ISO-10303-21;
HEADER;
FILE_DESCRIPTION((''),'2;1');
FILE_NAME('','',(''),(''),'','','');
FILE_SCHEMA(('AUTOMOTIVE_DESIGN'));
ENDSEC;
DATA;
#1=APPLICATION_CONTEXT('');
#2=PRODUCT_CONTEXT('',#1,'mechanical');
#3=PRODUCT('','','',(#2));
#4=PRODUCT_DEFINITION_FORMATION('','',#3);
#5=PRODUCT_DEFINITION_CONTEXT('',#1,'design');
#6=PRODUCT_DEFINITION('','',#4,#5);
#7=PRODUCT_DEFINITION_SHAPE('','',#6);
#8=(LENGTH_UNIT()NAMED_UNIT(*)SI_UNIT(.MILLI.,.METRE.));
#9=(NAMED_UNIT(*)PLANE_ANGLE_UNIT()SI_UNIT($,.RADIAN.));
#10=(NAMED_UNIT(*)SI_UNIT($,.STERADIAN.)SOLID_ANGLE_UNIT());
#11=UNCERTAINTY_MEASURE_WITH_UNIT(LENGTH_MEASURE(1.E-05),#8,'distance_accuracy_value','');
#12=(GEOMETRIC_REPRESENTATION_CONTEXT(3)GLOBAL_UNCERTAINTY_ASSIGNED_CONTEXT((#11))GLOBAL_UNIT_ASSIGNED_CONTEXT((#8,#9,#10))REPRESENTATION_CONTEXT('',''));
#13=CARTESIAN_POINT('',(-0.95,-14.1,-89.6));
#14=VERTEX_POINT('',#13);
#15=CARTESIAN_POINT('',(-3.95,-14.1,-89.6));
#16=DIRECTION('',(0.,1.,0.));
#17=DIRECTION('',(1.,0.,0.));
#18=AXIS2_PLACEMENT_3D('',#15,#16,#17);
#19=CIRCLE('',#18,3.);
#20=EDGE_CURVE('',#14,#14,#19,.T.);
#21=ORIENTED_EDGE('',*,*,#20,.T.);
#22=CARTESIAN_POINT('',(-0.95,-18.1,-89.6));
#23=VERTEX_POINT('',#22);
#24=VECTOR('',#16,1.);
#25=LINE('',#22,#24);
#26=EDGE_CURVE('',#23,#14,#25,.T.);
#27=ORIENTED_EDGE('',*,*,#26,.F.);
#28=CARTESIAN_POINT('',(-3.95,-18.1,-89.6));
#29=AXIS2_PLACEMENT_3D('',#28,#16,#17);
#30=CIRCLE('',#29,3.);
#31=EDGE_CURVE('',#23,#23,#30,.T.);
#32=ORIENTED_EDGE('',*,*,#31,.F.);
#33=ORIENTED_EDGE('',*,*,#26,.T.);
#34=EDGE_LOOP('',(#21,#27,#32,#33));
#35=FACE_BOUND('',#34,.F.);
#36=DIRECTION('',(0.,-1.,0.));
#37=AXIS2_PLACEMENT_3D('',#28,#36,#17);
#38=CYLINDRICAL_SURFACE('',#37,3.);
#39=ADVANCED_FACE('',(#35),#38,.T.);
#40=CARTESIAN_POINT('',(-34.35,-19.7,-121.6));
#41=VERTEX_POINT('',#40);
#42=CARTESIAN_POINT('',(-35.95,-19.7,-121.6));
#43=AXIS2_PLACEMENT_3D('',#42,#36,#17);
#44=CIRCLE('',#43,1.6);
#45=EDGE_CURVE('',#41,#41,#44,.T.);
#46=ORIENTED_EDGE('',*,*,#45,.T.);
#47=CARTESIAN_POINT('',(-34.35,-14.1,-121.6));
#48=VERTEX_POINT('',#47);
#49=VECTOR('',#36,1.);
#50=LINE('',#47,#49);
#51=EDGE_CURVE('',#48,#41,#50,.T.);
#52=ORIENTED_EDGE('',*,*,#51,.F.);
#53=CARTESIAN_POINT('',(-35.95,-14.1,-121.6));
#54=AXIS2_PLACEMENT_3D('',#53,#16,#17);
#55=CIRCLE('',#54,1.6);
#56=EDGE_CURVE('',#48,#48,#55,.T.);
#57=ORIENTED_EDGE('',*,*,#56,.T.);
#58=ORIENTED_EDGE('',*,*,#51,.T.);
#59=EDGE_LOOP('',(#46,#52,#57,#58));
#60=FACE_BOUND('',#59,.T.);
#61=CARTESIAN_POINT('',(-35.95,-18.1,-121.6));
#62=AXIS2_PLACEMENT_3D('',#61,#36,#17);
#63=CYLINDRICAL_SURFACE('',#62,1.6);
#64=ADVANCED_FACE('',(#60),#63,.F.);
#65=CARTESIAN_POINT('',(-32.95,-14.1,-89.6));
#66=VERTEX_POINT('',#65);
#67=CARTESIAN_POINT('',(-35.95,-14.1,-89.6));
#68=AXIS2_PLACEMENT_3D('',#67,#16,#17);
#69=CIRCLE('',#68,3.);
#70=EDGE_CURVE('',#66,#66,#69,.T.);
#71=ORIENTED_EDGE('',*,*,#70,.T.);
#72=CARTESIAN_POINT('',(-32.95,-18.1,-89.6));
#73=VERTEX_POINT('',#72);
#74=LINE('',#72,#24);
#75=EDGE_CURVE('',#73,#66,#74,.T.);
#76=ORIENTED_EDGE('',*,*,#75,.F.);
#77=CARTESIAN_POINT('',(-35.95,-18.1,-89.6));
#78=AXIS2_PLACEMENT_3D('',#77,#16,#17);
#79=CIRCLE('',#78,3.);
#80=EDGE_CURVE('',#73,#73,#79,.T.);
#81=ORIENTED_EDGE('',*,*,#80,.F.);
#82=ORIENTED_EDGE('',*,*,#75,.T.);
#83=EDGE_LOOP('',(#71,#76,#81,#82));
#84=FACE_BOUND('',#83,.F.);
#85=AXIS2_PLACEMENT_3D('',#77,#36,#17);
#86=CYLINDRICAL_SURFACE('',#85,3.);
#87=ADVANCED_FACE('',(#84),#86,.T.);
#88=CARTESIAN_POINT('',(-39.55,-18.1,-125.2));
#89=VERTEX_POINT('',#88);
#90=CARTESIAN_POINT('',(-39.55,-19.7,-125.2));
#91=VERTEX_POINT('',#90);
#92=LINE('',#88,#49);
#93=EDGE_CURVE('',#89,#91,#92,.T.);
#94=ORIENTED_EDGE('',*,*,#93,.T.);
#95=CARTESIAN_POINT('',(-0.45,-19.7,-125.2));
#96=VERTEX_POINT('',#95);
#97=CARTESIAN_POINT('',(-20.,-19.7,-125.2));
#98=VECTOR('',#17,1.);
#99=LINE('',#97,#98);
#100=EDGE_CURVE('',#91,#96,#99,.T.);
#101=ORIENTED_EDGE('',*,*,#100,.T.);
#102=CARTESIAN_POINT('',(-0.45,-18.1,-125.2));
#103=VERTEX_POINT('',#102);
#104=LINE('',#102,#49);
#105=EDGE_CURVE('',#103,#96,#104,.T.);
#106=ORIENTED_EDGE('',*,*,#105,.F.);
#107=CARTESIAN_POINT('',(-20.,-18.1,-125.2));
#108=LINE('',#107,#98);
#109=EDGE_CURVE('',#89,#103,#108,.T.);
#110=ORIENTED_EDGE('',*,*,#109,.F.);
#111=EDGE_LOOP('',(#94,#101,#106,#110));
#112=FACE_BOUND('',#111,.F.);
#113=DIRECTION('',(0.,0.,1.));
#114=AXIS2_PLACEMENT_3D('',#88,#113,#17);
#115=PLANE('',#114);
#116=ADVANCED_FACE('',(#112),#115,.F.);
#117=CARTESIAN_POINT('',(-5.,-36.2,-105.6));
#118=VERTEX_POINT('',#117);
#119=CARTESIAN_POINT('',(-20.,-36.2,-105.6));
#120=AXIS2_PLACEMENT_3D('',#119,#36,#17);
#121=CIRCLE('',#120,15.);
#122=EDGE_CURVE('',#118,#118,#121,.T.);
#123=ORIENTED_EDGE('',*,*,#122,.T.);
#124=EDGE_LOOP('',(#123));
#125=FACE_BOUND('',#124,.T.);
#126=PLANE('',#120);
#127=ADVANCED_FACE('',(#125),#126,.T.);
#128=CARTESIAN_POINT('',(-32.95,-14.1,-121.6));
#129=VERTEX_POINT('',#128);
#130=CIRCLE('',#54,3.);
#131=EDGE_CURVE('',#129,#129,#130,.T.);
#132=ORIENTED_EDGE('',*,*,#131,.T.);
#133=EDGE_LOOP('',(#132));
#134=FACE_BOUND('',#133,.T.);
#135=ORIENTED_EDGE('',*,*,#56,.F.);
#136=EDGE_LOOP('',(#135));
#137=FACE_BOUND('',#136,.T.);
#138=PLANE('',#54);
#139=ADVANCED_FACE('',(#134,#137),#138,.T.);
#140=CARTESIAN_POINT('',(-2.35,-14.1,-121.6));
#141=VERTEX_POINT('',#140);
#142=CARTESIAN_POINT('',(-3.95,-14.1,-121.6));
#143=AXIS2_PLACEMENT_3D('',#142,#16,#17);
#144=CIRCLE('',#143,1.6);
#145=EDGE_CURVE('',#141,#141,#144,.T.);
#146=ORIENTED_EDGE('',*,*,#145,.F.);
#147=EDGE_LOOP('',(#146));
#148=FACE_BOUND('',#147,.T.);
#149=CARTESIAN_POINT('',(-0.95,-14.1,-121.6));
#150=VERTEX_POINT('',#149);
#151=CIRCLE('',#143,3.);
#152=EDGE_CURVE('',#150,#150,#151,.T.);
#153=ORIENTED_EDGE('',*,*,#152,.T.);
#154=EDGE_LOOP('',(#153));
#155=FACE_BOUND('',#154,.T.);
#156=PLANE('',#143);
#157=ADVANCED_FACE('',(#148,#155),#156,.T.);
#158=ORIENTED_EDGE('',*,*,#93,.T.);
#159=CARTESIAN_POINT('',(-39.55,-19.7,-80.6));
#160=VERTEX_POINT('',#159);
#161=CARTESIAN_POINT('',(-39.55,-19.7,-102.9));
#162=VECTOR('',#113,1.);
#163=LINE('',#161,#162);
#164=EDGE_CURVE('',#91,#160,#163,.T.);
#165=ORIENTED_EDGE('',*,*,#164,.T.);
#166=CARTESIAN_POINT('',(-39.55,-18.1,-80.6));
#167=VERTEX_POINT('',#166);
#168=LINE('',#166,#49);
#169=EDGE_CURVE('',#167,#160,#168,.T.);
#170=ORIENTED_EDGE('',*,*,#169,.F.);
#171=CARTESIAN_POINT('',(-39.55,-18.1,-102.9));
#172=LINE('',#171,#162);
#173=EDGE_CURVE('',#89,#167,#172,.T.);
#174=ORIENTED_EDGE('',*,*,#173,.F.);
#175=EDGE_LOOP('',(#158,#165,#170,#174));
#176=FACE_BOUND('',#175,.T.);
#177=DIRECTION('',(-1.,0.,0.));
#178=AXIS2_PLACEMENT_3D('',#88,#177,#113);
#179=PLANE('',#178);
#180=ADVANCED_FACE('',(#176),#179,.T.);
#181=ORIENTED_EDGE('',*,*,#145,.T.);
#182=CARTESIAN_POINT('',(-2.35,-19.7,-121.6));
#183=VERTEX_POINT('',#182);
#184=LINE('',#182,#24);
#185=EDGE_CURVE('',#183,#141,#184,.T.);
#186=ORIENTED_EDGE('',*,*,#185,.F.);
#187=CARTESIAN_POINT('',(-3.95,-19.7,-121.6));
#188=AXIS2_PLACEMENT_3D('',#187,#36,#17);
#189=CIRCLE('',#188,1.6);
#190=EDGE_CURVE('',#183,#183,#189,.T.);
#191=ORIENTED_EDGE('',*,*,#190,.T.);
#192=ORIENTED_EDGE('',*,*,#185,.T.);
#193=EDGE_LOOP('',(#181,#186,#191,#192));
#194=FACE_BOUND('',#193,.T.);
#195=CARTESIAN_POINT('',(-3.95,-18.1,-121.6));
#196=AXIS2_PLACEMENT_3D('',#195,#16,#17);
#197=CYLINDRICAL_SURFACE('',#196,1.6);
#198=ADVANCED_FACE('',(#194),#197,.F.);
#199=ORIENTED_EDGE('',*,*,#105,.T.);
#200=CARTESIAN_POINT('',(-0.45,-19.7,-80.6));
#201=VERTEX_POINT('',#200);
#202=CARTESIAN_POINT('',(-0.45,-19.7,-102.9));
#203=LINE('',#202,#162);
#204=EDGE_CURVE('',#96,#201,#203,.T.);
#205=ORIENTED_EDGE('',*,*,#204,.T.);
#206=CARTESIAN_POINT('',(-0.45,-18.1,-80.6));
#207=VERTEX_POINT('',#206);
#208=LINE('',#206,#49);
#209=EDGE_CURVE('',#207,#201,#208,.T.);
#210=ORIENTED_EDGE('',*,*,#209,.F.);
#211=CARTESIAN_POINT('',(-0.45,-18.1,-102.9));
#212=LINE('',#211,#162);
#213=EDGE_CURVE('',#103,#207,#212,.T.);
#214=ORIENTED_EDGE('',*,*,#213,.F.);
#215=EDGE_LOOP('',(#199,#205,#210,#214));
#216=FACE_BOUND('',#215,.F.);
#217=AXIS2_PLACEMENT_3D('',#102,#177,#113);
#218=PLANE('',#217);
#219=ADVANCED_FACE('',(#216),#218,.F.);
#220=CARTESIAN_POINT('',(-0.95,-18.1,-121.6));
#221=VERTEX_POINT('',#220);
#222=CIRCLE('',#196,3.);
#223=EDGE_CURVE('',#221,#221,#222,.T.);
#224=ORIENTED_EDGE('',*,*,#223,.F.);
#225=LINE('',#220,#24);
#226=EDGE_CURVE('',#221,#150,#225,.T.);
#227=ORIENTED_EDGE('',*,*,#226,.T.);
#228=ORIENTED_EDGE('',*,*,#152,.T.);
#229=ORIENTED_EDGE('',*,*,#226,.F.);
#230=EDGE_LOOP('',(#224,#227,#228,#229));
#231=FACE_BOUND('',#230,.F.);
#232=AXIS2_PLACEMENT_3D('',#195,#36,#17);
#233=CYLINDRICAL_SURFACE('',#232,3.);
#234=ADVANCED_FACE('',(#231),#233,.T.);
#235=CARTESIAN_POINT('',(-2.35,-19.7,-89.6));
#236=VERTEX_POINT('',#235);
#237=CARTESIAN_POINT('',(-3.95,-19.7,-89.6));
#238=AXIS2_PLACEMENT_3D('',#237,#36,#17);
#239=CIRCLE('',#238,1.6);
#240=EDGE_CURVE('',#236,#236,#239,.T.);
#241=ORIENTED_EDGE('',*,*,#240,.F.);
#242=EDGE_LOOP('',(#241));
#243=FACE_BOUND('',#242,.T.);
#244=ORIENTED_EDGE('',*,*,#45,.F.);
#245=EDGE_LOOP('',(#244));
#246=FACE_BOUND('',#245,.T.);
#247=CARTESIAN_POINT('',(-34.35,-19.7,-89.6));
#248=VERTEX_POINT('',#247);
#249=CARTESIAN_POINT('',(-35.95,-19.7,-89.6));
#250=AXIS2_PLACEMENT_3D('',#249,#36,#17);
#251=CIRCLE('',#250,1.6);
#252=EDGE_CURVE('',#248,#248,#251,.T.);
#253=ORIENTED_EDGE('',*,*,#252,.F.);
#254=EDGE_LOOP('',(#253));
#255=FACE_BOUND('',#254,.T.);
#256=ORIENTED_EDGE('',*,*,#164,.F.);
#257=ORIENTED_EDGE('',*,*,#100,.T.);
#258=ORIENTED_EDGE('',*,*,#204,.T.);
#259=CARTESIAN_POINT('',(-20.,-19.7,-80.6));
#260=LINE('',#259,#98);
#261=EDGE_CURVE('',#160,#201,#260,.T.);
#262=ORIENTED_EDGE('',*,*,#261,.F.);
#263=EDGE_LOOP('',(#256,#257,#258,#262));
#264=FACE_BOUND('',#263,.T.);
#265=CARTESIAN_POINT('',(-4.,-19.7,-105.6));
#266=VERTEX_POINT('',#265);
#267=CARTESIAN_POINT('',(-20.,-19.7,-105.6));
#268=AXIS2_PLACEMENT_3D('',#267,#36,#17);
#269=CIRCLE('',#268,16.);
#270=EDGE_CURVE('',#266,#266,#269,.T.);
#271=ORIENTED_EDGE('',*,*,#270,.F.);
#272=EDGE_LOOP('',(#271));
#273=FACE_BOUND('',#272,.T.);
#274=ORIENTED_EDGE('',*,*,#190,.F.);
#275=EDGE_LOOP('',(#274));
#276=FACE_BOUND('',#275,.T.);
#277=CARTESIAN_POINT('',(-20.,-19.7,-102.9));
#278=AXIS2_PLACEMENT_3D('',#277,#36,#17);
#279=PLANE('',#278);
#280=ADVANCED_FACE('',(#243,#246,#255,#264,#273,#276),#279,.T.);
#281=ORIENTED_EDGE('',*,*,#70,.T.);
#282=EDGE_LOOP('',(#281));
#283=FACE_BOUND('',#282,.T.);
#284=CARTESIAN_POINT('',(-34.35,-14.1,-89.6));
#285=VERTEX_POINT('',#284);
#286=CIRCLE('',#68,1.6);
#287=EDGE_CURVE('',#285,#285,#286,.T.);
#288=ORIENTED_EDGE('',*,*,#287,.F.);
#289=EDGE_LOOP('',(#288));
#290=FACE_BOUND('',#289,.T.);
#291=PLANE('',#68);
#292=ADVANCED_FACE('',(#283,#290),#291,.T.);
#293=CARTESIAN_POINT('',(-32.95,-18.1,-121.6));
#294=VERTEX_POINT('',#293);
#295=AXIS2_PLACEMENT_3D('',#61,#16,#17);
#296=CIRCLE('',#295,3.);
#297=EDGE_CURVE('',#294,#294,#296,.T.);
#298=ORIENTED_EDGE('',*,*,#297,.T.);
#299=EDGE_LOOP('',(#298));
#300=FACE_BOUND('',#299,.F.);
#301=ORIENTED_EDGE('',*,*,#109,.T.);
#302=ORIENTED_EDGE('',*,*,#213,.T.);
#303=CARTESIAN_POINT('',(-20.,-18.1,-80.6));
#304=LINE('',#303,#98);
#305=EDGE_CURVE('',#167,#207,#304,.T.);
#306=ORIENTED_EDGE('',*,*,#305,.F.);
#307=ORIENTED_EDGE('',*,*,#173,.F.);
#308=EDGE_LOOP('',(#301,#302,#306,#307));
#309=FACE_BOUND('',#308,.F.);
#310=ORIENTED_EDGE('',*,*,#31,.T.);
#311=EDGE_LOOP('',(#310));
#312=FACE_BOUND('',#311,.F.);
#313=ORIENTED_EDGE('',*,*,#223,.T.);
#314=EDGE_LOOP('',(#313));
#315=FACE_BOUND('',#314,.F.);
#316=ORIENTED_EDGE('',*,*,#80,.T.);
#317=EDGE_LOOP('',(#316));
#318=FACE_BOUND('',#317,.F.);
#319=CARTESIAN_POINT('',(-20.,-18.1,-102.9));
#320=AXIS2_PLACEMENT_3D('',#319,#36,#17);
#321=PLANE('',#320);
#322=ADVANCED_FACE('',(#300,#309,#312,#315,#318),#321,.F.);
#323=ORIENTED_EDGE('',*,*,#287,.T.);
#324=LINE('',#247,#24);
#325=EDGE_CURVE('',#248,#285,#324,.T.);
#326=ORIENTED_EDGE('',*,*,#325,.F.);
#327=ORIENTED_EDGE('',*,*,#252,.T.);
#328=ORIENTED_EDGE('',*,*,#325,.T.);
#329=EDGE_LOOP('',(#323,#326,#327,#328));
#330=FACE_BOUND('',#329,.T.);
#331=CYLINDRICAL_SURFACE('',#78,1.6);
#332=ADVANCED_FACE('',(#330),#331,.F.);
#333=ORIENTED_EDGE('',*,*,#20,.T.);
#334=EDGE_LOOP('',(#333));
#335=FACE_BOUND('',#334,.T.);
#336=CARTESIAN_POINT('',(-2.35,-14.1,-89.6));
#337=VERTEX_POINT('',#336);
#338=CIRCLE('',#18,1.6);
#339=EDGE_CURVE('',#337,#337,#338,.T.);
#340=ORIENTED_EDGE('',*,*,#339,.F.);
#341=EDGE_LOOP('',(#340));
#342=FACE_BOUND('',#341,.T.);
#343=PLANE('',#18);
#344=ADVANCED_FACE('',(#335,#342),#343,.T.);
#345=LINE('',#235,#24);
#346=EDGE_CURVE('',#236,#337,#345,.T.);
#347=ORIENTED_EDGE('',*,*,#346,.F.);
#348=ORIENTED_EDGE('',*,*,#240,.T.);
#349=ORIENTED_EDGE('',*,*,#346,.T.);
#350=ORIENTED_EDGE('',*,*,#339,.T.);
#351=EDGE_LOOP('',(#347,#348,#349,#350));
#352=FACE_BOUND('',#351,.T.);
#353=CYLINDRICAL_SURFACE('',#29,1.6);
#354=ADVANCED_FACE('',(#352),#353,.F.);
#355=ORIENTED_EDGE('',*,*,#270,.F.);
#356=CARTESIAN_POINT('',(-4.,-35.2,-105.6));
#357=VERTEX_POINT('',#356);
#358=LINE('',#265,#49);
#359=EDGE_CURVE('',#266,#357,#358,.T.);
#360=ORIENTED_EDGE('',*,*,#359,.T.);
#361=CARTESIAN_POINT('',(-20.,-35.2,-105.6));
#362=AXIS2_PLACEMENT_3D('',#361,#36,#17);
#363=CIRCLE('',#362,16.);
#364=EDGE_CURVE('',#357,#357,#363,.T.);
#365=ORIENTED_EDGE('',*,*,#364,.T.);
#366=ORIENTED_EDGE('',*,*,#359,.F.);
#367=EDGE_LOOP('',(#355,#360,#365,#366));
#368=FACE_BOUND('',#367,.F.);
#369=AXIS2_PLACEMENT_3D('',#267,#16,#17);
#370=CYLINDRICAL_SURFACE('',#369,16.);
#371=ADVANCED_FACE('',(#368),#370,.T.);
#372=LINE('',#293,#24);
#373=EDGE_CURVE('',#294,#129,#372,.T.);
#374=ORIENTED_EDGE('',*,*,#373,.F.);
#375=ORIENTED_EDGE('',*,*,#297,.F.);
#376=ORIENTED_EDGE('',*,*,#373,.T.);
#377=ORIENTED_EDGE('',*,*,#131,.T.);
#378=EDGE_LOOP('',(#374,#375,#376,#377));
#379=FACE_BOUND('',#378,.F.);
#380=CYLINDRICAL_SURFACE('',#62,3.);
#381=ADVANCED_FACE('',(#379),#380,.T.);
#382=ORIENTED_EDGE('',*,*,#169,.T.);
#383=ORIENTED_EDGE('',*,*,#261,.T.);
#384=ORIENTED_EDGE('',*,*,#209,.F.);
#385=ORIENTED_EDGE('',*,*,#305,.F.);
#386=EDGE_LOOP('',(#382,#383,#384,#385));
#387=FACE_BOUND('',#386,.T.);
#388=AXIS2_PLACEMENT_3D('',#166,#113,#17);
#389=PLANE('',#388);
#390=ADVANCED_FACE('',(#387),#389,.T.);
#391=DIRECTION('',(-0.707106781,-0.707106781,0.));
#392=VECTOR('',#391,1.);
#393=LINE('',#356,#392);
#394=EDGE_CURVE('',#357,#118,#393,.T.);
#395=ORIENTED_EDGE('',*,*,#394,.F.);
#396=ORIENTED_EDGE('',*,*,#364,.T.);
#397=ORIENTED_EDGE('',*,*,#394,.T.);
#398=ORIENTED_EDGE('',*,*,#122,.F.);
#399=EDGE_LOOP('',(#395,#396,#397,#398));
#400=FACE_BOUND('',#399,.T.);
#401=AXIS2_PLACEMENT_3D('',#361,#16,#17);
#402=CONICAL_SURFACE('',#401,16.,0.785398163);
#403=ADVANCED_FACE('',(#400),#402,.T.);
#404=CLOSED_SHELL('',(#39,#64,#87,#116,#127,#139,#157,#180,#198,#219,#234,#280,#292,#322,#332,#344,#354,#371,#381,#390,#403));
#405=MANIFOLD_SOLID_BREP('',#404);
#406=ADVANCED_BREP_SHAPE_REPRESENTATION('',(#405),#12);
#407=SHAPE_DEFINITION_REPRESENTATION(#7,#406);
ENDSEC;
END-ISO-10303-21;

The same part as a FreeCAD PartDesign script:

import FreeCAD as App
import Part
import Sketcher
Q = App.Units.Quantity


def edges_at(feature, points):
    """Names of the edges that pass closest to the given points."""
    edges = feature.Shape.Edges
    near = lambda p: min(range(len(edges)), key=lambda i: edges[i].distToShape(Part.Vertex(*p))[0])
    return sorted({f"Edge{near(p) + 1}" for p in points})


def add_polygon(sketch, points):
    """Adds a closed chain of lines whose ends are joined by coincident constraints."""
    first, n = sketch.GeometryCount, len(points)
    for a, b in zip(points, points[1:] + points[:1]):
        sketch.addGeometry(Part.LineSegment(App.Vector(*a, 0), App.Vector(*b, 0)), False)
    for i in range(n):
        sketch.addConstraint(Sketcher.Constraint("Coincident", first + i, 2, first + (i + 1) % n, 1))

doc = App.newDocument("Part")
body = doc.addObject("PartDesign::Body", "Body")

sketch1 = body.newObject("Sketcher::SketchObject", "Sketch")
sketch1.AttachmentSupport = (doc.getObject("XZ_Plane"), [""])
sketch1.MapMode = "FlatFace"
add_polygon(sketch1, [(-19.6, 22.3), (-19.6, -22.3), (19.6, -22.3), (19.6, 22.3)])
sketch1.addGeometry(Part.Circle(App.Vector(-15.9, -18.7, 0), App.Vector(0, 0, 1), 1.6), False)
sketch1.addGeometry(Part.Circle(App.Vector(16.1, -18.7, 0), App.Vector(0, 0, 1), 1.6), False)
sketch1.addGeometry(Part.Circle(App.Vector(-15.9, 13.3, 0), App.Vector(0, 0, 1), 1.6), False)
sketch1.addGeometry(Part.Circle(App.Vector(16.1, 13.3, 0), App.Vector(0, 0, 1), 1.6), False)
sketch1.addConstraint([
    Sketcher.Constraint("Vertical", 0),
    Sketcher.Constraint("Horizontal", 1),
    Sketcher.Constraint("Vertical", 2),
    Sketcher.Constraint("Horizontal", 3),
    Sketcher.Constraint("Equal", 4, 5),
    Sketcher.Constraint("Equal", 5, 6),
    Sketcher.Constraint("Equal", 6, 7),
    Sketcher.Constraint("Symmetric", 0, 2, 2, 2, -1, 1),
    Sketcher.Constraint("Horizontal", 4, 3, 5, 3),
    Sketcher.Constraint("Horizontal", 6, 3, 7, 3),
    Sketcher.Constraint("Vertical", 4, 3, 6, 3),
    Sketcher.Constraint("Vertical", 5, 3, 7, 3),
    Sketcher.Constraint("Diameter", 4, Q("3.2 mm")),
    Sketcher.Constraint("DistanceX", 1, 1, 1, 2, Q("39.1 mm")),
    Sketcher.Constraint("DistanceY", 0, 2, 0, 1, Q("44.6 mm")),
    Sketcher.Constraint("DistanceX", 4, 3, 5, 3, Q("32 mm")),
    Sketcher.Constraint("DistanceY", 4, 3, 6, 3, Q("32 mm")),
    Sketcher.Constraint("DistanceY", 7, 3, 2, 2, Q("9 mm")),
    Sketcher.Constraint("DistanceX", 0, 2, 4, 3, Q("3.6 mm")),
])
pad1 = body.newObject("PartDesign::Pad", "Pad")
pad1.Profile = sketch1
pad1.Length = 1.6

sketch2 = body.newObject("Sketcher::SketchObject", "Sketch001")
sketch2.AttachmentSupport = (doc.getObject("XZ_Plane"), [""])
sketch2.MapMode = "FlatFace"
sketch2.AttachmentOffset = App.Placement(App.Vector(0, 0, 1.6), App.Rotation())
sketch2.addGeometry(Part.Circle(App.Vector(0, -3, 0), App.Vector(0, 0, 1), 16), False)
sketch2.addConstraint([
    Sketcher.Constraint("PointOnObject", 0, 3, -2),
    Sketcher.Constraint("Diameter", 0, Q("32 mm")),
    Sketcher.Constraint("DistanceY", 0, 3, -1, 1, Q("2.7 mm")),
])
pad2 = body.newObject("PartDesign::Pad", "Pad001")
pad2.Profile = sketch2
pad2.Length = 16.5

sketch3 = body.newObject("Sketcher::SketchObject", "Sketch002")
sketch3.AttachmentSupport = (doc.getObject("XZ_Plane"), [""])
sketch3.MapMode = "FlatFace"
sketch3.addGeometry([
    Part.Circle(App.Vector(-15.9, -18.7, 0), App.Vector(0, 0, 1), 3),
    Part.Circle(App.Vector(-15.9, -18.7, 0), App.Vector(0, 0, 1), 1.6),
    Part.Circle(App.Vector(16.1, -18.7, 0), App.Vector(0, 0, 1), 3),
    Part.Circle(App.Vector(16.1, -18.7, 0), App.Vector(0, 0, 1), 1.6),
    Part.Circle(App.Vector(16.1, 13.3, 0), App.Vector(0, 0, 1), 3),
    Part.Circle(App.Vector(16.1, 13.3, 0), App.Vector(0, 0, 1), 1.6),
    Part.Circle(App.Vector(-15.9, 13.3, 0), App.Vector(0, 0, 1), 3),
    Part.Circle(App.Vector(-15.9, 13.3, 0), App.Vector(0, 0, 1), 1.6),
], False)
sketch3.addConstraint([
    Sketcher.Constraint("Coincident", 1, 3, 0, 3),
    Sketcher.Constraint("Coincident", 3, 3, 2, 3),
    Sketcher.Constraint("Coincident", 5, 3, 4, 3),
    Sketcher.Constraint("Coincident", 7, 3, 6, 3),
    Sketcher.Constraint("Equal", 0, 2),
    Sketcher.Constraint("Equal", 1, 3),
    Sketcher.Constraint("Equal", 2, 4),
    Sketcher.Constraint("Equal", 3, 5),
    Sketcher.Constraint("Equal", 4, 6),
    Sketcher.Constraint("Equal", 5, 7),
    Sketcher.Constraint("Horizontal", 1, 3, 2, 3),
    Sketcher.Constraint("Horizontal", 5, 3, 6, 3),
    Sketcher.Constraint("Vertical", 3, 3, 4, 3),
    Sketcher.Constraint("Vertical", 1, 3, 6, 3),
    Sketcher.Constraint("Diameter", 0, Q("6 mm")),
    Sketcher.Constraint("Diameter", 1, Q("3.2 mm")),
    Sketcher.Constraint("DistanceX", 0, 3, 2, 3, Q("32 mm")),
    Sketcher.Constraint("DistanceY", 2, 3, 4, 3, Q("32 mm")),
    Sketcher.Constraint("DistanceY", 0, 3, -1, 1, Q("18.7 mm")),
    Sketcher.Constraint("DistanceX", 0, 3, -1, 1, Q("15.95 mm")),
])
pad3 = body.newObject("PartDesign::Pad", "Pad002")
pad3.Profile = sketch3
pad3.Length = 4
pad3.Reversed = True
doc.recompute()

chamfer = body.newObject("PartDesign::Chamfer", "Chamfer")
chamfer.Base = (pad3, edges_at(pad3, [(-16, -18.1, -2.7)]))
chamfer.Size = 1
body2 = doc.addObject("PartDesign::Body", "Body001")
doc.recompute()

body.Placement = App.Placement(App.Vector(-20, -18.1, -102.9), App.Rotation(App.Vector(0, 0, 1), 0))
boolean = body2.newObject("PartDesign::Boolean", "Boolean")
boolean.Type = "Fuse"
boolean.addObjects([body])

doc.recompute()
